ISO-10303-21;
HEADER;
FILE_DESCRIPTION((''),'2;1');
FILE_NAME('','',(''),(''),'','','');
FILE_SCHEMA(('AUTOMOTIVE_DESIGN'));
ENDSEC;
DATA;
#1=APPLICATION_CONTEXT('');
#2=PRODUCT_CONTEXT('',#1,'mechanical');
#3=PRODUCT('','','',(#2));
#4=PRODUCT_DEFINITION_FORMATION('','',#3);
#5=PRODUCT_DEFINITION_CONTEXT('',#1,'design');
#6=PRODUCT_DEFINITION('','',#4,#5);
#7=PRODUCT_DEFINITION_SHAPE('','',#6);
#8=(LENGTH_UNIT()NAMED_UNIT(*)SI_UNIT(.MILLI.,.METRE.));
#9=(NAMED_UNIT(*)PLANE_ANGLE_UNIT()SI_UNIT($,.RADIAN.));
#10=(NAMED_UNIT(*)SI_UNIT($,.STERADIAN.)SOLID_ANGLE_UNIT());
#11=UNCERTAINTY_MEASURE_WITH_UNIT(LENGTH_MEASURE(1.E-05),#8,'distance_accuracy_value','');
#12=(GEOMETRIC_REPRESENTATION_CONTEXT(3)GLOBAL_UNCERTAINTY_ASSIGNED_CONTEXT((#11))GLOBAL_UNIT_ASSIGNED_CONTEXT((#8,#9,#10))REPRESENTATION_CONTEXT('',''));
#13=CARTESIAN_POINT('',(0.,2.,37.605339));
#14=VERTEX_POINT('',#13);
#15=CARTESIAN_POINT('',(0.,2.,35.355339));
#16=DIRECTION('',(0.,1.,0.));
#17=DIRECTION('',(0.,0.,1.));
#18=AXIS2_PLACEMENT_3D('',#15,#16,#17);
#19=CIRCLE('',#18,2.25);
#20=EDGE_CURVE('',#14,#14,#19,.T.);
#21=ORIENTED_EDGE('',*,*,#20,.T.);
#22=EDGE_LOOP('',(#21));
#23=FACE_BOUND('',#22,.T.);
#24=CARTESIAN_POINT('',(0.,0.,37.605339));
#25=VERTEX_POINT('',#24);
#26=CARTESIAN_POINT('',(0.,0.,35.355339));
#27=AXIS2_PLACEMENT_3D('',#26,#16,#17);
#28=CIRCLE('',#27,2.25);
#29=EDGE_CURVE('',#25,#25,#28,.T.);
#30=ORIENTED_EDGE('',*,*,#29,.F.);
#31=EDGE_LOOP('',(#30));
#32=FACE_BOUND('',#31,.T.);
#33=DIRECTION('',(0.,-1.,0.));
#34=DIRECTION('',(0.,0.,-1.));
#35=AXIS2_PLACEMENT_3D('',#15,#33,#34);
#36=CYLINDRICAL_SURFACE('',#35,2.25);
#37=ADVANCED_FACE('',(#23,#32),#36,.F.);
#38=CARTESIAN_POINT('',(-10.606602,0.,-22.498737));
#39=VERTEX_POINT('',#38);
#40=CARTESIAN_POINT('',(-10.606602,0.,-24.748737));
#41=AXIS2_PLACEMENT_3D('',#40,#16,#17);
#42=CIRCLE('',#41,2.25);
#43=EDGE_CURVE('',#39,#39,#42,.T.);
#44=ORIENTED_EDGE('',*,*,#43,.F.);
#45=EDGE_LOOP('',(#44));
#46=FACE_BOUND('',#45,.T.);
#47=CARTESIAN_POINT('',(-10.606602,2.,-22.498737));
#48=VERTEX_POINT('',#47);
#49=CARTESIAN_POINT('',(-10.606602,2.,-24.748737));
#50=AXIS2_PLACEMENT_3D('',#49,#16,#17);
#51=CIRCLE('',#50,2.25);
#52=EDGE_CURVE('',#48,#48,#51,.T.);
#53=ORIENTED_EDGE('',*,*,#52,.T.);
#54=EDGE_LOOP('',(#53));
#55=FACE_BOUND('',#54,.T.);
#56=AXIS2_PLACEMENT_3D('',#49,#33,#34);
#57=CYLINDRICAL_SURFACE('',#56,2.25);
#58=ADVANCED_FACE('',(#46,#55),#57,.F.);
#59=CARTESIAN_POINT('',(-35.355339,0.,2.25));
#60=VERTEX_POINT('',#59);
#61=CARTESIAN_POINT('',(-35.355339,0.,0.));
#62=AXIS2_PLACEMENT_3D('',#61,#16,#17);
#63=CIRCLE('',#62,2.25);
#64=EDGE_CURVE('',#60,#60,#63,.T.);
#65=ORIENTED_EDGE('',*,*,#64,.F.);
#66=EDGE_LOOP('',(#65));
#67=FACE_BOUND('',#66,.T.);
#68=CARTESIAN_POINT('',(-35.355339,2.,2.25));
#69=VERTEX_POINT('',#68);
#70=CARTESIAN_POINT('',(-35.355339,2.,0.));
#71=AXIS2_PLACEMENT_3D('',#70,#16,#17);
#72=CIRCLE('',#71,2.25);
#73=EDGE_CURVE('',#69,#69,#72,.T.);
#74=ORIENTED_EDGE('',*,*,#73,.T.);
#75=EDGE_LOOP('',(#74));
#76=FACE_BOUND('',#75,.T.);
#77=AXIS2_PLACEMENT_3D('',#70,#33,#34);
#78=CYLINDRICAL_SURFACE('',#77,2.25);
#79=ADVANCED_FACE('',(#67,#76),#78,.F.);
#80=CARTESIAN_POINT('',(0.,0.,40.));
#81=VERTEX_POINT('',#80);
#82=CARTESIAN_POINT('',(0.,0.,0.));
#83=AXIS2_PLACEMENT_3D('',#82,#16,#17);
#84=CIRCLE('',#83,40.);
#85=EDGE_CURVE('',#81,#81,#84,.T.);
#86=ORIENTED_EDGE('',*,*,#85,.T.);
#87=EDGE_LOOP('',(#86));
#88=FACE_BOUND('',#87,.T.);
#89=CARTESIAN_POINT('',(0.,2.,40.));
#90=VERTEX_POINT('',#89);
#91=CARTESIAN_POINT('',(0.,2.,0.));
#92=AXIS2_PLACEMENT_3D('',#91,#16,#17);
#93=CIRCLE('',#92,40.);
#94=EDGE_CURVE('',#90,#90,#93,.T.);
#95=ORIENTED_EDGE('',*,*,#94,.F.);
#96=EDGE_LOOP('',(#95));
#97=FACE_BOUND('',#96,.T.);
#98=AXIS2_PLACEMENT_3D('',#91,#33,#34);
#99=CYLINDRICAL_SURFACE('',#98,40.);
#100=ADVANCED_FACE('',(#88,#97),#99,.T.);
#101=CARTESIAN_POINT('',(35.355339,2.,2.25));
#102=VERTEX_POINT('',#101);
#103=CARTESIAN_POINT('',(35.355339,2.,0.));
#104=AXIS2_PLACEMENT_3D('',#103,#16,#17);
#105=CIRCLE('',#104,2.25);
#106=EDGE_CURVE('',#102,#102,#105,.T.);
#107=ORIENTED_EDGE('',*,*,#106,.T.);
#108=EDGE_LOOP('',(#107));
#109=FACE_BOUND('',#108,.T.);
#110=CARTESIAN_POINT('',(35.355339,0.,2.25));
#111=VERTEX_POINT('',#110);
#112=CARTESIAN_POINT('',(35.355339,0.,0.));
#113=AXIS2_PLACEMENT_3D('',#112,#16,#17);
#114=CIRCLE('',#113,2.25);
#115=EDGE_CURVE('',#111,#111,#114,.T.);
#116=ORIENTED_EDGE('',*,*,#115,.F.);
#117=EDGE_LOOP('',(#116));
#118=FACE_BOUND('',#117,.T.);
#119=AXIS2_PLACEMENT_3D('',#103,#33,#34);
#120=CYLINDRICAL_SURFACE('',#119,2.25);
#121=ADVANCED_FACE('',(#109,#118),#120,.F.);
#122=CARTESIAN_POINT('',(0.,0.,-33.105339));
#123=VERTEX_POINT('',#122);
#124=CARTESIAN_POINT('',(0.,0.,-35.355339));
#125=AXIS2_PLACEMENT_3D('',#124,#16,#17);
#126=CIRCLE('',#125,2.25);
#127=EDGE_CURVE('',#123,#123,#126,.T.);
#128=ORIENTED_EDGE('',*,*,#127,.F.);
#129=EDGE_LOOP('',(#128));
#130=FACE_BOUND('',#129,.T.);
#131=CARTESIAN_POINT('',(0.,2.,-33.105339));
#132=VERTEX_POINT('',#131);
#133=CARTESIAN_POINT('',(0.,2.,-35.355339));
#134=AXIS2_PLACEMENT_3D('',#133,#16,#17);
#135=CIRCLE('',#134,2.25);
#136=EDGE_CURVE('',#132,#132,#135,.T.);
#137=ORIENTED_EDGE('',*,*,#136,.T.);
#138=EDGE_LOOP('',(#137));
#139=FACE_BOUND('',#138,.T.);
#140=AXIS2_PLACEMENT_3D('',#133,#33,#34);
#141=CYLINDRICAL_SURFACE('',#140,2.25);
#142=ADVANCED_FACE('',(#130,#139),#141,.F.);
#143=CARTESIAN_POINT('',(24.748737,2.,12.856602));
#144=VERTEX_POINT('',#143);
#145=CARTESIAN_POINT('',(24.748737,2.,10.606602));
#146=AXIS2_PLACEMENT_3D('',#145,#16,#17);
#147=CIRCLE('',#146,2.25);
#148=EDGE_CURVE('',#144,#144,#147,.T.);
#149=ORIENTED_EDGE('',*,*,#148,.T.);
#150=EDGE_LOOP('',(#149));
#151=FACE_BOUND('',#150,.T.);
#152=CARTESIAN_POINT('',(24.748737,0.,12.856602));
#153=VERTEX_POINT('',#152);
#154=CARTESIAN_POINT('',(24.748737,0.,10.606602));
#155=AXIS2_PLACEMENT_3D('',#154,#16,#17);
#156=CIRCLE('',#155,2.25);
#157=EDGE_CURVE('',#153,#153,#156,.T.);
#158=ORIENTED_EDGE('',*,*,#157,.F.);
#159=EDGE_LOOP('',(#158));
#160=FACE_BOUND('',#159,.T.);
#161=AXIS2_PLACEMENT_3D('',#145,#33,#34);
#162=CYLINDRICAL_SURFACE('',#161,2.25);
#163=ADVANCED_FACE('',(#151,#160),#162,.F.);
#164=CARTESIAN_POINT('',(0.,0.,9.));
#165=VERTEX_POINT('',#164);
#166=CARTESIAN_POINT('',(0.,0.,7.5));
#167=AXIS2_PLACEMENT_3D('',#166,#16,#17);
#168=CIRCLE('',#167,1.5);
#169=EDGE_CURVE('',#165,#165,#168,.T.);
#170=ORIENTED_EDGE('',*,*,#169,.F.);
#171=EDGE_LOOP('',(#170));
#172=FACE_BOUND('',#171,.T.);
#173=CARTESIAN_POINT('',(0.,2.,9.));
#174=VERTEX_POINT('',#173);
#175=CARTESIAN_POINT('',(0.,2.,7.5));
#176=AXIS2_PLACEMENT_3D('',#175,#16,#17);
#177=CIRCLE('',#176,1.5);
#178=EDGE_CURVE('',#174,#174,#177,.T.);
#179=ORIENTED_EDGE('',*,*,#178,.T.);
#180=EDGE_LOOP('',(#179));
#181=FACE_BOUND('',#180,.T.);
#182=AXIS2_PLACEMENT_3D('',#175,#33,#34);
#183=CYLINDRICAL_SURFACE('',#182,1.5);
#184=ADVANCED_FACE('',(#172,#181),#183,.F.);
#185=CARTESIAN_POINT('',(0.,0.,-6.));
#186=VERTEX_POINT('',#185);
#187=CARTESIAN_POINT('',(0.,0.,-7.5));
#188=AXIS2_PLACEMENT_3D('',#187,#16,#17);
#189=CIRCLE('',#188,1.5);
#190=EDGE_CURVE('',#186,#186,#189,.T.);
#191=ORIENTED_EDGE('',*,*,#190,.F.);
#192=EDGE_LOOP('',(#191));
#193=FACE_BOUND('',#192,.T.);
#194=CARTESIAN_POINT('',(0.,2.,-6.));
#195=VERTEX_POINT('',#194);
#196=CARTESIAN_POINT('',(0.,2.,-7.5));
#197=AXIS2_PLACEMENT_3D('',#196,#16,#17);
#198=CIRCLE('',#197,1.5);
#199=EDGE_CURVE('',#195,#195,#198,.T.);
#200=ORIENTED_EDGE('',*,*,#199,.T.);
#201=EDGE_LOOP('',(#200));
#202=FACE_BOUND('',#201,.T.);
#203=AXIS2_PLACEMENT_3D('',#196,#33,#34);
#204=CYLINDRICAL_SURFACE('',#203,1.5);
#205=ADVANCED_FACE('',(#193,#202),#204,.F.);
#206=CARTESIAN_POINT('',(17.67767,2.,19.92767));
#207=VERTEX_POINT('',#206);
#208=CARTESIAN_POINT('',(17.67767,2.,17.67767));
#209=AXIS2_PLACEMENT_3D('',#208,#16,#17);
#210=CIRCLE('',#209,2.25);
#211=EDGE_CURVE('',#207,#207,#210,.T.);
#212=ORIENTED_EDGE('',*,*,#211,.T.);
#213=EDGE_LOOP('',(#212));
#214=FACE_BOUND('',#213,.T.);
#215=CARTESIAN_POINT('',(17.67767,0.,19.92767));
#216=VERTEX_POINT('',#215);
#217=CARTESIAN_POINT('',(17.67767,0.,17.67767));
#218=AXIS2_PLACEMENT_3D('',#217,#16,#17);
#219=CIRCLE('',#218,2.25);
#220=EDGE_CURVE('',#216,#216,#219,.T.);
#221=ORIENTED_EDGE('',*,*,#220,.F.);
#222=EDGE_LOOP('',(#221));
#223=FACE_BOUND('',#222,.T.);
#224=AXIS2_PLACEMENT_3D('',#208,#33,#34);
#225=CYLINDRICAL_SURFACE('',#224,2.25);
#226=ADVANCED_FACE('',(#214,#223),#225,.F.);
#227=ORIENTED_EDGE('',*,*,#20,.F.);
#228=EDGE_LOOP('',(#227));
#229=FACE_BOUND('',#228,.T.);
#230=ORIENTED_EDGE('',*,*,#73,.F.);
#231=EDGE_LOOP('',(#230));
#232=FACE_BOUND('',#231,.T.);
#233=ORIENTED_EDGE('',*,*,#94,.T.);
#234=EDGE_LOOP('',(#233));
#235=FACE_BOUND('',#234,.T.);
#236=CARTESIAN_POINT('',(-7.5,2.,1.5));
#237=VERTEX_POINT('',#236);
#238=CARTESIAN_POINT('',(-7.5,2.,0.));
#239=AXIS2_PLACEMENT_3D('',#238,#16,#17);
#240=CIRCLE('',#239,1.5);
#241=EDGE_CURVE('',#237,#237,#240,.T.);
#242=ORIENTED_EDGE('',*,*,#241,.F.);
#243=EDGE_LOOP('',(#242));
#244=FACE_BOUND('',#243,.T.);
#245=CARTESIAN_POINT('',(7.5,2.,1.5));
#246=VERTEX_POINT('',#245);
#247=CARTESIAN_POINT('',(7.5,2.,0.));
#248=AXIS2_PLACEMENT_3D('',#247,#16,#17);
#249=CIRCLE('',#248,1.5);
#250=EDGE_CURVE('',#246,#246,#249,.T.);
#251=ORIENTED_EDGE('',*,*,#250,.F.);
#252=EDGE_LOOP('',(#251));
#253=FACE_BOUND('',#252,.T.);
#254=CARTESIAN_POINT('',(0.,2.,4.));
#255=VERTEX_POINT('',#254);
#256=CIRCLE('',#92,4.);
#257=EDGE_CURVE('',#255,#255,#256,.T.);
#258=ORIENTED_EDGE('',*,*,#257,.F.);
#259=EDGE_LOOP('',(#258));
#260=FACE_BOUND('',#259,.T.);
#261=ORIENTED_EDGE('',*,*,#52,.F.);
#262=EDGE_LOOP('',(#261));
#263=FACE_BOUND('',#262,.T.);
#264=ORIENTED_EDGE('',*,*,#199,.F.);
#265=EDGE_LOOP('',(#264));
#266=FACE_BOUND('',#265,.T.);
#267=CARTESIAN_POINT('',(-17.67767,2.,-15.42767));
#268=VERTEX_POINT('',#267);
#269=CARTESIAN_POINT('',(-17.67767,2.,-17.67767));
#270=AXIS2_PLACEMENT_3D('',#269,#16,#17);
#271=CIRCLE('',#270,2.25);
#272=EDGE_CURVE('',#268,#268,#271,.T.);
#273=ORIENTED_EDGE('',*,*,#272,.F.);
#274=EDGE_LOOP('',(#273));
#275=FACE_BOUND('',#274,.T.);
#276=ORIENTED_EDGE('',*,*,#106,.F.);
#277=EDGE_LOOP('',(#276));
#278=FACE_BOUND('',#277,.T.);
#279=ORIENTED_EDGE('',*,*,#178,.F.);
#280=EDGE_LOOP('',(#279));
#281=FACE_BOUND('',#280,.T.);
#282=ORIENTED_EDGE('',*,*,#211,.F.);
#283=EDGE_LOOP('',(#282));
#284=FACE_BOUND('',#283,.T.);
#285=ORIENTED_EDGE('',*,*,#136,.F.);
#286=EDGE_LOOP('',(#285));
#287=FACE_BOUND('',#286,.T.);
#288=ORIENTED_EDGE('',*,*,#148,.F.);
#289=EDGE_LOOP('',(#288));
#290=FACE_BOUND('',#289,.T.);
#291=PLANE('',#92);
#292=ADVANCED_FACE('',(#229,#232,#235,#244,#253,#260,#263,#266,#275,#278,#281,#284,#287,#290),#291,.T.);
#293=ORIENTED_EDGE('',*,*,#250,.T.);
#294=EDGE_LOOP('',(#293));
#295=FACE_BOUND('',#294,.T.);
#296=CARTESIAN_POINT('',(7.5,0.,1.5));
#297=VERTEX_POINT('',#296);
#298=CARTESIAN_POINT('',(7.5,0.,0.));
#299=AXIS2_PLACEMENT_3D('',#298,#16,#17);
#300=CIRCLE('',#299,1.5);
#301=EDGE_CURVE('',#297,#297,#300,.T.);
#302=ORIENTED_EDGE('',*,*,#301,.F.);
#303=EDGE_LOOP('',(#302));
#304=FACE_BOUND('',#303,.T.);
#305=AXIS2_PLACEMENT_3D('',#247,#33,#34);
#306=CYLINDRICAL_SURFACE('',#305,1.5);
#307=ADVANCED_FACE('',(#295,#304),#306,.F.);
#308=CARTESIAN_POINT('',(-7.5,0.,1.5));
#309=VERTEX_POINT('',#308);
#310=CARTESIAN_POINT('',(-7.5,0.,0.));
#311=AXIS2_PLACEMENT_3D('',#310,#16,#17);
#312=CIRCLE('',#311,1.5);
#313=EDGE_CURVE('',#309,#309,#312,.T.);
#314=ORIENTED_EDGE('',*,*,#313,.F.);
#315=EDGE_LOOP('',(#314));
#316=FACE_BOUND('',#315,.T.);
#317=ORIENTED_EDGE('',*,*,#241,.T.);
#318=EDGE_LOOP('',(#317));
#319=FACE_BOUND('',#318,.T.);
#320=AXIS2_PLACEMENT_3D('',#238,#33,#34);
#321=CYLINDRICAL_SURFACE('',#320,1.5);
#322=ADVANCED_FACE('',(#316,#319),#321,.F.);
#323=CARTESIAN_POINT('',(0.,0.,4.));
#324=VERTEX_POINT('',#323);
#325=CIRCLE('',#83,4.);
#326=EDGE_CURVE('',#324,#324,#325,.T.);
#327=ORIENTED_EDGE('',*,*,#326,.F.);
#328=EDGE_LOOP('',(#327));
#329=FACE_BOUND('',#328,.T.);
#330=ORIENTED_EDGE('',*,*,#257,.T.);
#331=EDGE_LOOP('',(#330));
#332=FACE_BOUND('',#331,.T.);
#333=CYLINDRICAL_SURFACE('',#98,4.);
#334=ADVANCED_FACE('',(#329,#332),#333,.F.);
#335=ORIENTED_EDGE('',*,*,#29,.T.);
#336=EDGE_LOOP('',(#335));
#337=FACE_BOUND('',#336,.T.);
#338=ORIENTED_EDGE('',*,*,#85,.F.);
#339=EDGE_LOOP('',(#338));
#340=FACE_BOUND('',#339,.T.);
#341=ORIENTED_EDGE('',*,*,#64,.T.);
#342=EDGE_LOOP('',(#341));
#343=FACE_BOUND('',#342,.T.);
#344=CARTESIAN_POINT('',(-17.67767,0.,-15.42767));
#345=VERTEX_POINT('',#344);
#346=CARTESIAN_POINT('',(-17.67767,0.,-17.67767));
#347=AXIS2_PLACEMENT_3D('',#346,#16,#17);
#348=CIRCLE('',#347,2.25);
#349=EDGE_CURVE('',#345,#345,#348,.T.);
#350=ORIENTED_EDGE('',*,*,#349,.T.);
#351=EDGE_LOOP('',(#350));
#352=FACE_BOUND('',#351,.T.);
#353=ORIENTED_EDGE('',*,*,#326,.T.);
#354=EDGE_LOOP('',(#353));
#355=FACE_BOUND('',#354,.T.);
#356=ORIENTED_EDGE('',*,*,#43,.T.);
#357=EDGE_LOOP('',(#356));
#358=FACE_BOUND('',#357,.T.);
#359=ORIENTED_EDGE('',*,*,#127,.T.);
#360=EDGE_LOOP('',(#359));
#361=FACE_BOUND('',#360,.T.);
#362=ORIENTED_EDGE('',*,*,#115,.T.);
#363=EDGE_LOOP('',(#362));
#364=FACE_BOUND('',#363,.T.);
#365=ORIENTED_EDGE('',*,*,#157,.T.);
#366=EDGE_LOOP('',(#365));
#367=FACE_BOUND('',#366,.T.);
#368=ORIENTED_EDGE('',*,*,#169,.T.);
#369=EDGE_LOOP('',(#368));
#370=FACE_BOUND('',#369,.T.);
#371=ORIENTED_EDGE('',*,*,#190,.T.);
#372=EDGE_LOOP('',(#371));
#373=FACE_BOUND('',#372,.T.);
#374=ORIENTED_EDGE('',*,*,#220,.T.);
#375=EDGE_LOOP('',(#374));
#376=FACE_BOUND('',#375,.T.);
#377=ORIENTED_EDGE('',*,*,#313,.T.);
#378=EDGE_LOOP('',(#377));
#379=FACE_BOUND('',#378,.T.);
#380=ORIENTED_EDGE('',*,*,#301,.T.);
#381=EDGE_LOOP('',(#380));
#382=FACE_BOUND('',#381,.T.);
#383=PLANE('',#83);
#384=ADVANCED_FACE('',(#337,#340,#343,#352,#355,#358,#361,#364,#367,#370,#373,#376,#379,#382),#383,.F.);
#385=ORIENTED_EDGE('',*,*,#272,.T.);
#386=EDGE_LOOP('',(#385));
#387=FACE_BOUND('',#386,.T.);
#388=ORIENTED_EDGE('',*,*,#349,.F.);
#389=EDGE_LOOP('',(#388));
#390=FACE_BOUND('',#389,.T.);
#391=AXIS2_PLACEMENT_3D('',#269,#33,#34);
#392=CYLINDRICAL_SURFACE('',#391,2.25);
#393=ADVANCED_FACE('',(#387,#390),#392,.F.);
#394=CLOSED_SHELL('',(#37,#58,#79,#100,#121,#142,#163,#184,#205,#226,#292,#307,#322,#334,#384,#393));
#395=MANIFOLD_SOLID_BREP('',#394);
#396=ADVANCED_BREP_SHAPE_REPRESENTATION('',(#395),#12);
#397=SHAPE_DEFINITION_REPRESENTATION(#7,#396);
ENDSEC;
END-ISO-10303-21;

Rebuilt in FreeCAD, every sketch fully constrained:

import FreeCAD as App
import Part
import Sketcher
Q = App.Units.Quantity

doc = App.newDocument("Part")
body = doc.addObject("PartDesign::Body", "Body")

sketch1 = doc.addObject("Sketcher::SketchObject", "Sketch")
body.addObject(sketch1)
sketch1.AttachmentSupport = (doc.XZ_Plane, [""])
sketch1.MapMode = "FlatFace"
sketch1.addGeometry([
    Part.Circle(App.Vector(0, 0, 0), App.Vector(0, 0, 1), 40),
    Part.Circle(App.Vector(-10.6, -24.7, 0), App.Vector(0, 0, 1), 2.2),
    Part.Circle(App.Vector(0, -35.4, 0), App.Vector(0, 0, 1), 2.2),
    Part.Circle(App.Vector(-17.7, -17.7, 0), App.Vector(0, 0, 1), 2.2),
    Part.Circle(App.Vector(0, -7.5, 0), App.Vector(0, 0, 1), 1.5),
    Part.Circle(App.Vector(-35.4, 0, 0), App.Vector(0, 0, 1), 2.2),
    Part.Circle(App.Vector(-7.5, 0, 0), App.Vector(0, 0, 1), 1.5),
    Part.Circle(App.Vector(35.4, 0, 0), App.Vector(0, 0, 1), 2.2),
    Part.Circle(App.Vector(0, 0, 0), App.Vector(0, 0, 1), 4),
    Part.Circle(App.Vector(0, 7.5, 0), App.Vector(0, 0, 1), 1.5),
    Part.Circle(App.Vector(7.5, 0, 0), App.Vector(0, 0, 1), 1.5),
    Part.Circle(App.Vector(17.7, 17.7, 0), App.Vector(0, 0, 1), 2.2),
    Part.Circle(App.Vector(0, 35.4, 0), App.Vector(0, 0, 1), 2.2),
    Part.Circle(App.Vector(24.7, 10.6, 0), App.Vector(0, 0, 1), 2.2),
], False)
sketch1.addConstraint([
    Sketcher.Constraint("Coincident", 0, 3, -1, 1),
    Sketcher.Constraint("Coincident", 8, 3, -1, 1),
    Sketcher.Constraint("Equal", 1, 2),
    Sketcher.Constraint("Equal", 2, 3),
    Sketcher.Constraint("Equal", 3, 5),
    Sketcher.Constraint("Equal", 4, 6),
    Sketcher.Constraint("Equal", 5, 7),
    Sketcher.Constraint("Equal", 6, 9),
    Sketcher.Constraint("Equal", 9, 10),
    Sketcher.Constraint("Equal", 7, 11),
    Sketcher.Constraint("Equal", 11, 12),
    Sketcher.Constraint("Equal", 12, 13),
    Sketcher.Constraint("Symmetric", 5, 3, 7, 3, -1, 1),
    Sketcher.Constraint("Symmetric", 4, 3, 9, 3, -1, 1),
    Sketcher.Constraint("Symmetric", 6, 3, 10, 3, -1, 1),
    Sketcher.Constraint("Symmetric", 3, 3, 11, 3, -1, 1),
    Sketcher.Constraint("Symmetric", 2, 3, 12, 3, -1, 1),
    Sketcher.Constraint("PointOnObject", 2, 3, -2),
    Sketcher.Constraint("PointOnObject", 4, 3, -2),
    Sketcher.Constraint("PointOnObject", 5, 3, -1),
    Sketcher.Constraint("PointOnObject", 6, 3, -1),
    Sketcher.Constraint("Diameter", 0, Q("80 mm")),
    Sketcher.Constraint("Diameter", 4, Q("3 mm")),
    Sketcher.Constraint("Diameter", 8, Q("8 mm")),
    Sketcher.Constraint("Diameter", 1, Q("4.5 mm")),
    Sketcher.Constraint("DistanceY", 4, 3, 9, 3, Q("15 mm")),
    Sketcher.Constraint("DistanceX", 6, 3, 10, 3, Q("15 mm")),
    Sketcher.Constraint("DistanceX", 1, 3, -1, 1, Q("10.606602 mm")),
    Sketcher.Constraint("DistanceY", -1, 1, 13, 3, Q("10.606602 mm")),
    Sketcher.Constraint("DistanceY", 2, 3, 1, 3, Q("10.606602 mm")),
    Sketcher.Constraint("DistanceX", 13, 3, 7, 3, Q("10.606602 mm")),
    Sketcher.Constraint("DistanceY", 2, 3, -1, 1, Q("35.355339 mm")),
    Sketcher.Constraint("DistanceX", 3, 3, -1, 1, Q("17.67767 mm")),
    Sketcher.Constraint("DistanceY", 3, 3, -1, 1, Q("17.67767 mm")),
    Sketcher.Constraint("DistanceX", 5, 3, -1, 1, Q("35.355339 mm")),
])
pad1 = doc.addObject("PartDesign::Pad", "Pad")
body.addObject(pad1)
pad1.Profile = sketch1
pad1.Length = 2
pad1.Reversed = True

doc.recompute()
